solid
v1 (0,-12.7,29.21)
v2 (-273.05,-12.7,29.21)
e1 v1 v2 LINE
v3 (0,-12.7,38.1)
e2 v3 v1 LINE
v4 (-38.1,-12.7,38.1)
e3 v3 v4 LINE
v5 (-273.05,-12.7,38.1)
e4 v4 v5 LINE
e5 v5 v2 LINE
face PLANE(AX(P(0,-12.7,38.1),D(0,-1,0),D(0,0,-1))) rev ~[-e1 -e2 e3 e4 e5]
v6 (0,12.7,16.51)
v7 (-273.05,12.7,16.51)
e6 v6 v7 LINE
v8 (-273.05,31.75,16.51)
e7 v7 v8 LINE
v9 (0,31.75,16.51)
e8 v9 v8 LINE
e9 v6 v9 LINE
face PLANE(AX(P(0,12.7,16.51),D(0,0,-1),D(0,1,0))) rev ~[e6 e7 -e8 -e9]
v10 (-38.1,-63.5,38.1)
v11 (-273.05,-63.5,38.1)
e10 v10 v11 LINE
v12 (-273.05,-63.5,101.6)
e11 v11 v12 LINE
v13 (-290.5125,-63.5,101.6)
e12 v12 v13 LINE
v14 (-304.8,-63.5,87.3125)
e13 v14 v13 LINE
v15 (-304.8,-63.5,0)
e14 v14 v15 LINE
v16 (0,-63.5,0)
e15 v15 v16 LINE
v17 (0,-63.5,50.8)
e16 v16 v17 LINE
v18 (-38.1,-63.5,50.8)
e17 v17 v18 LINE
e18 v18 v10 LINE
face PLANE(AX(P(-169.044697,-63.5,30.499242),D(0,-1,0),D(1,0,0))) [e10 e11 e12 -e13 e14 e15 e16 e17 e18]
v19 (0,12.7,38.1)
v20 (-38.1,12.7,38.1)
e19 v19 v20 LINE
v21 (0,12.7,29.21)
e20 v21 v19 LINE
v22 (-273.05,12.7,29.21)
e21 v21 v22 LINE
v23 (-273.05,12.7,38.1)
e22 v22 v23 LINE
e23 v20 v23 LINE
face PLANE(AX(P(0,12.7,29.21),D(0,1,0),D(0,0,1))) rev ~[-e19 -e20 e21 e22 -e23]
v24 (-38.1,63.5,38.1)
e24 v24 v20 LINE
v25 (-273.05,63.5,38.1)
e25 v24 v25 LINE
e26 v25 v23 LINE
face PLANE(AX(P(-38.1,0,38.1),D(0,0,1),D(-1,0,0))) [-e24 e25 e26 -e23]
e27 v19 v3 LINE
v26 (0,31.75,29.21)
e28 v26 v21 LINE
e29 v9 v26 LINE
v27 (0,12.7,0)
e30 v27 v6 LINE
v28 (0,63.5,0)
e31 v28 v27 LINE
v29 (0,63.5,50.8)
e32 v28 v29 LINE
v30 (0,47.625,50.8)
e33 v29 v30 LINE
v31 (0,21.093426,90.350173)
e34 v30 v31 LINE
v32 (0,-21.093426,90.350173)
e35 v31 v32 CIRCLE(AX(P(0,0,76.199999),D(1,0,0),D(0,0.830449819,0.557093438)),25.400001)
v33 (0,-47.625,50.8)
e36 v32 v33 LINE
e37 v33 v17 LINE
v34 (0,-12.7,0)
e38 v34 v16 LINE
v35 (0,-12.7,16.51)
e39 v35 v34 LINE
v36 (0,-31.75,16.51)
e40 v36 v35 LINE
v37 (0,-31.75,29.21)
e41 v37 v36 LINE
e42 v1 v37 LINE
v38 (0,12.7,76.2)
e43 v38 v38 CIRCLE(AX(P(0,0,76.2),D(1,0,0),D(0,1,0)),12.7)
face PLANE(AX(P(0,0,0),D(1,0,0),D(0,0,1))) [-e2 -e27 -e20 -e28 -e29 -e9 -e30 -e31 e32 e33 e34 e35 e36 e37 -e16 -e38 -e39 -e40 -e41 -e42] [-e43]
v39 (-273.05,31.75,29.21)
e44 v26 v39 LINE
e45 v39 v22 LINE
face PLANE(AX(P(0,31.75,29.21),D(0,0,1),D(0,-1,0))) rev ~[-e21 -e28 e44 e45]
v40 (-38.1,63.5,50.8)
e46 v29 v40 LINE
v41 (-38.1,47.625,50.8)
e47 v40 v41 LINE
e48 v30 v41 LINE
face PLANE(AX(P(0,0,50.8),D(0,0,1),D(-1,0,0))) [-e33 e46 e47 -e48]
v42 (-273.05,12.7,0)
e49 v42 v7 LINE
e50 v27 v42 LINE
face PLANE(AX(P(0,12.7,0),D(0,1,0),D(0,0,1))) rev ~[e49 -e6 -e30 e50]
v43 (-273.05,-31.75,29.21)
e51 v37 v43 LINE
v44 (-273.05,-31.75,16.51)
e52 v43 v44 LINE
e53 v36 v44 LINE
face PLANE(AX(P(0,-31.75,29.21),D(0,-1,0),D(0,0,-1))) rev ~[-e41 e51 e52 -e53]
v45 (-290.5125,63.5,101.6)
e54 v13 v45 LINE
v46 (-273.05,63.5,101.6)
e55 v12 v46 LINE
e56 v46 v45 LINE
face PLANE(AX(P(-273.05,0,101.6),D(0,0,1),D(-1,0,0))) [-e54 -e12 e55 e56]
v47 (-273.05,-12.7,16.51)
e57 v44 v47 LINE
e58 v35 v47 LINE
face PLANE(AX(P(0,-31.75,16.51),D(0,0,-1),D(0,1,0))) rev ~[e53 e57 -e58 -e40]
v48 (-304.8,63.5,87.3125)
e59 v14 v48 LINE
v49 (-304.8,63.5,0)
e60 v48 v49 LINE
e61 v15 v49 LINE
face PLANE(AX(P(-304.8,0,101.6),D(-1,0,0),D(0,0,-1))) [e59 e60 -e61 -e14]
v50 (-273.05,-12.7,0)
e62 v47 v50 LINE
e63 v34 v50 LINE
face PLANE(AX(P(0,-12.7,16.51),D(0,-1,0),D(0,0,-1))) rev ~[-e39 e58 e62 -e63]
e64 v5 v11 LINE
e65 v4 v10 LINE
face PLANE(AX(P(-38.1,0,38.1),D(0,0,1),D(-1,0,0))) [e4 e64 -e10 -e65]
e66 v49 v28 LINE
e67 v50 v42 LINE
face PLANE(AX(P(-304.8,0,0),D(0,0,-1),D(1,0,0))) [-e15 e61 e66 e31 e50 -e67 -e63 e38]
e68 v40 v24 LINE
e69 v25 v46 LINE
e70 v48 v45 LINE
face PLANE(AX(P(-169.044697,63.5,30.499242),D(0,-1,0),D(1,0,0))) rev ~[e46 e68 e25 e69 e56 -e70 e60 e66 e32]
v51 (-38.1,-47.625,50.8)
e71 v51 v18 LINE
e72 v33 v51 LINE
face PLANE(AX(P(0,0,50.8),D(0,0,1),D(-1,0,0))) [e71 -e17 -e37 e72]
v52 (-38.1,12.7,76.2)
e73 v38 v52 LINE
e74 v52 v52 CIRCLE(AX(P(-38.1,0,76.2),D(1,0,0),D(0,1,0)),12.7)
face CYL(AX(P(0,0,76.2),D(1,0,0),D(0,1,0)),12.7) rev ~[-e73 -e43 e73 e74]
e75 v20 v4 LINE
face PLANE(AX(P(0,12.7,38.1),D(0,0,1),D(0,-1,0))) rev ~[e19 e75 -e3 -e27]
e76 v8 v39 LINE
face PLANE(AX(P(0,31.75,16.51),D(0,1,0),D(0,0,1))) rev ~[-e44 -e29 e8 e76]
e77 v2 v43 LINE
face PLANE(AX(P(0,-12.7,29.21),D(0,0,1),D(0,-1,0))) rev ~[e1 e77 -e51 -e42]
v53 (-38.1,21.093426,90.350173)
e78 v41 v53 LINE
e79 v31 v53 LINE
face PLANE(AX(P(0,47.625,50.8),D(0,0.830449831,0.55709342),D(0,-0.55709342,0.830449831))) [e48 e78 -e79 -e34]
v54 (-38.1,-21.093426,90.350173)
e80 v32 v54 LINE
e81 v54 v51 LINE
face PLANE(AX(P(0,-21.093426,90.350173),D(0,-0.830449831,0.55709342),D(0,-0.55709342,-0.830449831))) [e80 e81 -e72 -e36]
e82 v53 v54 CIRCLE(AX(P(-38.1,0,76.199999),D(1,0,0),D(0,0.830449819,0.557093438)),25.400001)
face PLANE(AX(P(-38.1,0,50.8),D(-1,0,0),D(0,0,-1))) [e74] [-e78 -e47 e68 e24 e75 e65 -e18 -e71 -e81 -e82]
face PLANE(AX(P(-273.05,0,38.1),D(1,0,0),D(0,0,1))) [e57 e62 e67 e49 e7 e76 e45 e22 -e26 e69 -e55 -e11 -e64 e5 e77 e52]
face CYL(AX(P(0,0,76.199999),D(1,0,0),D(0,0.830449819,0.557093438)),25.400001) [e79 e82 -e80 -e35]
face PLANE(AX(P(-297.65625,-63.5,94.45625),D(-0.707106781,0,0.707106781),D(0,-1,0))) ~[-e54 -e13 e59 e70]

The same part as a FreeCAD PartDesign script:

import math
import FreeCAD as App
import Part
import Sketcher

V = App.Vector
Q = App.Units.Quantity


def edges_at(feature, points):
    """Names of the edges that pass closest to the given points."""
    edges = feature.Shape.Edges
    near = lambda p: min(range(len(edges)), key=lambda i: edges[i].distToShape(Part.Vertex(*p))[0])
    return sorted({f"Edge{near(p) + 1}" for p in points})


def add_polygon(sketch, points):
    """Adds a closed chain of lines whose ends are joined by coincident constraints."""
    first, n = sketch.GeometryCount, len(points)
    for a, b in zip(points, points[1:] + points[:1]):
        sketch.addGeometry(Part.LineSegment(App.Vector(*a, 0), App.Vector(*b, 0)), False)
    for i in range(n):
        sketch.addConstraint(Sketcher.Constraint("Coincident", first + i, 2, first + (i + 1) % n, 1))

doc = App.newDocument("Part")
body = doc.addObject("PartDesign::Body", "Body")

# Sketch on XZ plane
sketch1 = body.newObject("Sketcher::SketchObject", "Sketch")
sketch1.AttachmentSupport = (doc.getObject("XZ_Plane"), [""])
sketch1.MapMode = "FlatFace"
add_polygon(sketch1, [(-305, 0), (0, 0), (0, 51), (-38, 51), (-38, 38), (-273, 38), (-273, 102), (-305, 102)])  # lines 0-7
sketch1.addConstraint([
    Sketcher.Constraint("Horizontal", 0),
    Sketcher.Constraint("Vertical", 1),
    Sketcher.Constraint("Horizontal", 2),
    Sketcher.Constraint("Vertical", 3),
    Sketcher.Constraint("Horizontal", 4),
    Sketcher.Constraint("Vertical", 5),
    Sketcher.Constraint("Horizontal", 6),
    Sketcher.Constraint("Vertical", 7),
    Sketcher.Constraint("Coincident", 0, 2, -1, 1),
    Sketcher.Constraint("DistanceX", 0, 1, 0, 2, Q("12 in")),
    Sketcher.Constraint("DistanceY", 1, 1, 1, 2, Q("2 in")),
    Sketcher.Constraint("DistanceY", 7, 2, 7, 1, Q("4 in")),
    Sketcher.Constraint("DistanceX", 2, 2, 2, 1, Q("1.5 in")),
    Sketcher.Constraint("DistanceY", 3, 2, 3, 1, Q("0.5 in")),
    Sketcher.Constraint("DistanceX", 4, 2, 4, 1, Q("9.25 in")),
])
pad1 = body.newObject("PartDesign::Pad", "Pad")
pad1.Profile = sketch1
pad1.Length = Q("5 in")
pad1.Midplane = True
doc.recompute()

chamfer = body.newObject("PartDesign::Chamfer", "Chamfer")
chamfer.Base = (pad1, edges_at(pad1, [(-304.8, 0, 101.6)]))
chamfer.Size = Q("0.5625 in")

# Sketch on YZ plane
sketch2 = body.newObject("Sketcher::SketchObject", "Sketch001")
sketch2.AttachmentSupport = (doc.getObject("YZ_Plane"), [""])
sketch2.MapMode = "FlatFace"
sketch2.addGeometry([
    Part.LineSegment(V(-21, 90, 0), V(-48, 51, 0)),  # 0
    Part.LineSegment(V(-48, 51, 0), V(48, 51, 0)),  # 1
    Part.LineSegment(V(48, 51, 0), V(21, 90, 0)),  # 2
    Part.ArcOfCircle(Part.Circle(V(0, 76, 0), V(0, 0, 1), 25), math.radians(34), math.radians(146)),  # 3
    Part.Circle(V(0, 76, 0), V(0, 0, 1), 13),  # 4
], False)
sketch2.addConstraint([
    Sketcher.Constraint("Coincident", 0, 2, 1, 1),
    Sketcher.Constraint("Coincident", 1, 2, 2, 1),
    Sketcher.Constraint("Tangent", 2, 2, 3, 1),
    Sketcher.Constraint("Tangent", 3, 2, 0, 1),
    Sketcher.Constraint("Horizontal", 1),
    Sketcher.Constraint("Coincident", 4, 3, 3, 3),
    Sketcher.Constraint("Symmetric", 2, 2, 3, 2, -2),
    Sketcher.Constraint("Diameter", 4, Q("1 in")),
    Sketcher.Constraint("Radius", 3, Q("1 in")),
    Sketcher.Constraint("DistanceY", -1, 1, 3, 3, Q("3 in")),
    Sketcher.Constraint("DistanceY", -1, 1, 0, 2, Q("2 in")),
    Sketcher.Constraint("DistanceX", 1, 1, 1, 2, Q("3.75 in")),
])
pad2 = body.newObject("PartDesign::Pad", "Pad001")
pad2.Profile = sketch2
pad2.Length = Q("1.5 in")
pad2.Reversed = True

# Sketch on YZ plane
sketch3 = body.newObject("Sketcher::SketchObject", "Sketch002")
sketch3.AttachmentSupport = (doc.getObject("YZ_Plane"), [""])
sketch3.MapMode = "FlatFace"
add_polygon(sketch3, [(-13, 17), (-13, 0), (13, 0), (13, 17), (32, 17), (32, 29), (13, 29), (13, 38), (-13, 38), (-13, 29), (-32, 29), (-32, 17)])  # lines 0-11
sketch3.addConstraint([
    Sketcher.Constraint("Vertical", 0),
    Sketcher.Constraint("Horizontal", 1),
    Sketcher.Constraint("Vertical", 2),
    Sketcher.Constraint("Horizontal", 3),
    Sketcher.Constraint("Vertical", 4),
    Sketcher.Constraint("Horizontal", 5),
    Sketcher.Constraint("Vertical", 6),
    Sketcher.Constraint("Horizontal", 7),
    Sketcher.Constraint("Vertical", 8),
    Sketcher.Constraint("Horizontal", 9),
    Sketcher.Constraint("Vertical", 10),
    Sketcher.Constraint("Horizontal", 11),
    Sketcher.Constraint("Symmetric", 0, 2, 1, 2, -1, 1),
    Sketcher.Constraint("Symmetric", 5, 2, 8, 2, -2),
    Sketcher.Constraint("Symmetric", 3, 2, 10, 2, -2),
    Sketcher.Constraint("Vertical", 2, 2, 5, 2),
    Sketcher.Constraint("DistanceX", 1, 1, 1, 2, Q("1 in")),
    Sketcher.Constraint("DistanceY", 4, 1, 4, 2, Q("0.5 in")),
    Sketcher.Constraint("DistanceX", 3, 1, 3, 2, Q("0.75 in")),
    Sketcher.Constraint("DistanceY", 0, 2, 0, 1, Q("0.65 in")),
    Sketcher.Constraint("DistanceY", 6, 1, 6, 2, Q("0.35 in")),
])
pocket1 = body.newObject("PartDesign::Pocket", "Pocket")
pocket1.Profile = sketch3
pocket1.Length = Q("10.75 in")

doc.recompute()
